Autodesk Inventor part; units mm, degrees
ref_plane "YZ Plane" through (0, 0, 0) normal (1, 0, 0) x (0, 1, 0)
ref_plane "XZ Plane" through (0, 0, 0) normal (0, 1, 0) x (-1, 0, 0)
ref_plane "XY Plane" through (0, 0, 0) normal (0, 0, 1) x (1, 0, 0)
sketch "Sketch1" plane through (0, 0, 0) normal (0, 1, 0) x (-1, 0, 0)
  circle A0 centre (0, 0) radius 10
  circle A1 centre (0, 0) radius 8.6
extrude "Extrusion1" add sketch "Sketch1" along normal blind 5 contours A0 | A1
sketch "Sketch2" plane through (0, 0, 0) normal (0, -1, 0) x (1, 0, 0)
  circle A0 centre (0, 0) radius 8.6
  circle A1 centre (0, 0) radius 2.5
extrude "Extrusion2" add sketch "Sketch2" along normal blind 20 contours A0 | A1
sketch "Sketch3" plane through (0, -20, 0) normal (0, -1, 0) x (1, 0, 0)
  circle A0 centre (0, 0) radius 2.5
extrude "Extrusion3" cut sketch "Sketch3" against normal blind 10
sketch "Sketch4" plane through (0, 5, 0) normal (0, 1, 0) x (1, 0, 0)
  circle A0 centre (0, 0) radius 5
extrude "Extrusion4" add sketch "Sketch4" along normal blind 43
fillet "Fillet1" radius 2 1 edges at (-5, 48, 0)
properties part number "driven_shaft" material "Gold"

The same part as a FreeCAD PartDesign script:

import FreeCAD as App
import Part
import Sketcher

V = App.Vector
Q = App.Units.Quantity


def edges_at(feature, points):
    """Names of the edges that pass closest to the given points."""
    edges = feature.Shape.Edges
    near = lambda p: min(range(len(edges)), key=lambda i: edges[i].distToShape(Part.Vertex(*p))[0])
    return sorted({f"Edge{near(p) + 1}" for p in points})

doc = App.newDocument("Part")
body = doc.addObject("PartDesign::Body", "Body")

# Sketch on XZ plane
sketch1 = body.newObject("Sketcher::SketchObject", "Sketch")
sketch1.AttachmentSupport = (doc.getObject("XZ_Plane"), [""])
sketch1.MapMode = "FlatFace"
sketch1.addGeometry(Part.Circle(V(0, 0, 0), V(0, 0, 1), 10), False)
sketch1.addConstraint([
    Sketcher.Constraint("Coincident", 0, 3, -1, 1),
    Sketcher.Constraint("Diameter", 0, Q("20 mm")),
])
pad1 = body.newObject("PartDesign::Pad", "Pad")
pad1.Profile = sketch1
pad1.Length = 5
pad1.Reversed = True

# Sketch on XZ plane
sketch2 = body.newObject("Sketcher::SketchObject", "Sketch001")
sketch2.AttachmentSupport = (doc.getObject("XZ_Plane"), [""])
sketch2.MapMode = "FlatFace"
sketch2.addGeometry(Part.Circle(V(0, 0, 0), V(0, 0, 1), 9), False)
sketch2.addConstraint([
    Sketcher.Constraint("Coincident", 0, 3, -1, 1),
    Sketcher.Constraint("Diameter", 0, Q("17.2 mm")),
])
pad2 = body.newObject("PartDesign::Pad", "Pad001")
pad2.Profile = sketch2
pad2.Length = 20

# Sketch on XZ plane
sketch3 = body.newObject("Sketcher::SketchObject", "Sketch002")
sketch3.AttachmentSupport = (doc.getObject("XZ_Plane"), [""])
sketch3.MapMode = "FlatFace"
sketch3.AttachmentOffset = App.Placement(V(0, 0, 20), App.Rotation())
sketch3.addGeometry(Part.Circle(V(0, 0, 0), V(0, 0, 1), 2.5), False)
sketch3.addConstraint([
    Sketcher.Constraint("Coincident", 0, 3, -1, 1),
    Sketcher.Constraint("Diameter", 0, Q("5 mm")),
])
pocket1 = body.newObject("PartDesign::Pocket", "Pocket")
pocket1.Profile = sketch3
pocket1.Length = 10

# Sketch on XZ plane
sketch4 = body.newObject("Sketcher::SketchObject", "Sketch003")
sketch4.AttachmentSupport = (doc.getObject("XZ_Plane"), [""])
sketch4.MapMode = "FlatFace"
sketch4.AttachmentOffset = App.Placement(V(0, 0, -5), App.Rotation())
sketch4.addGeometry(Part.Circle(V(0, 0, 0), V(0, 0, 1), 5), False)
sketch4.addConstraint([
    Sketcher.Constraint("Coincident", 0, 3, -1, 1),
    Sketcher.Constraint("Diameter", 0, Q("10 mm")),
])
pad3 = body.newObject("PartDesign::Pad", "Pad002")
pad3.Profile = sketch4
pad3.Length = 43
pad3.Reversed = True
doc.recompute()

fillet = body.newObject("PartDesign::Fillet", "Fillet")
fillet.Base = (pad3, edges_at(pad3, [(-5, 48, 0)]))
fillet.Radius = 2

doc.recompute()
